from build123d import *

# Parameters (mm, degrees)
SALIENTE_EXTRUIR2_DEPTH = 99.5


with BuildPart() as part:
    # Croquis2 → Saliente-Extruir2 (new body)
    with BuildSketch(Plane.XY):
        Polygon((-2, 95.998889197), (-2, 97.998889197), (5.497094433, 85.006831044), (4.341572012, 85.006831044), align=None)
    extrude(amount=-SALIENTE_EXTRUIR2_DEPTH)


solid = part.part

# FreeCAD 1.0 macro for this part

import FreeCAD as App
import Part
import Sketcher

V = App.Vector

doc = App.newDocument("Part")
params = doc.addObject("Spreadsheet::Sheet", "Params")
for row, (alias, value) in enumerate([
    ("sketch1_height", "2 mm"),
    ("sketch1_length", "15 mm"),
    ("pad1_length", "99.5 mm"),
], start=1):
    params.set(f"A{row}", alias)
    params.set(f"B{row}", "=" + value)
    params.setAlias(f"B{row}", alias)

body = doc.addObject("PartDesign::Body", "Body")

sketch1 = body.newObject("Sketcher::SketchObject", "Sketch")
sketch1.AttachmentSupport = (doc.getObject("XY_Plane"), [""])
sketch1.MapMode = "FlatFace"
sketch1.addGeometry([
    Part.LineSegment(V(-2, 98, 0), V(-2, 96, 0)),
    Part.LineSegment(V(-2, 96, 0), V(4.3, 85, 0)),
    Part.LineSegment(V(4.3, 85, 0), V(5.5, 85, 0)),
    Part.LineSegment(V(5.5, 85, 0), V(-2, 98, 0)),
], False)
sketch1.addConstraint([
    Sketcher.Constraint("Coincident", 0, 2, 1, 1),
    Sketcher.Constraint("Coincident", 1, 2, 2, 1),
    Sketcher.Constraint("Coincident", 2, 2, 3, 1),
    Sketcher.Constraint("Coincident", 3, 2, 0, 1),
    Sketcher.Constraint("Vertical", 0),
    Sketcher.Constraint("Horizontal", 2),
    Sketcher.Constraint("DistanceY", 0, 2, 0, 1, 2.0),
    Sketcher.Constraint("Distance", 3, 15.0),
    Sketcher.Constraint("DistanceX", 0, 2, -1, 1, 2.0),
    Sketcher.Constraint("Distance", 1, 12.690188),
    Sketcher.Constraint("DistanceY", -1, 1, 0, 2, 95.998889),
    Sketcher.Constraint("DistanceY", -1, 1, 1, 2, 85.006831),
])
sketch1.setExpression("Constraints[6]", "Params.sketch1_height")
sketch1.setExpression("Constraints[7]", "Params.sketch1_length")
pad1 = body.newObject("PartDesign::Pad", "Pad")
pad1.Profile = sketch1
pad1.setExpression("Length", "Params.pad1_length")
pad1.Reversed = True

doc.recompute()
